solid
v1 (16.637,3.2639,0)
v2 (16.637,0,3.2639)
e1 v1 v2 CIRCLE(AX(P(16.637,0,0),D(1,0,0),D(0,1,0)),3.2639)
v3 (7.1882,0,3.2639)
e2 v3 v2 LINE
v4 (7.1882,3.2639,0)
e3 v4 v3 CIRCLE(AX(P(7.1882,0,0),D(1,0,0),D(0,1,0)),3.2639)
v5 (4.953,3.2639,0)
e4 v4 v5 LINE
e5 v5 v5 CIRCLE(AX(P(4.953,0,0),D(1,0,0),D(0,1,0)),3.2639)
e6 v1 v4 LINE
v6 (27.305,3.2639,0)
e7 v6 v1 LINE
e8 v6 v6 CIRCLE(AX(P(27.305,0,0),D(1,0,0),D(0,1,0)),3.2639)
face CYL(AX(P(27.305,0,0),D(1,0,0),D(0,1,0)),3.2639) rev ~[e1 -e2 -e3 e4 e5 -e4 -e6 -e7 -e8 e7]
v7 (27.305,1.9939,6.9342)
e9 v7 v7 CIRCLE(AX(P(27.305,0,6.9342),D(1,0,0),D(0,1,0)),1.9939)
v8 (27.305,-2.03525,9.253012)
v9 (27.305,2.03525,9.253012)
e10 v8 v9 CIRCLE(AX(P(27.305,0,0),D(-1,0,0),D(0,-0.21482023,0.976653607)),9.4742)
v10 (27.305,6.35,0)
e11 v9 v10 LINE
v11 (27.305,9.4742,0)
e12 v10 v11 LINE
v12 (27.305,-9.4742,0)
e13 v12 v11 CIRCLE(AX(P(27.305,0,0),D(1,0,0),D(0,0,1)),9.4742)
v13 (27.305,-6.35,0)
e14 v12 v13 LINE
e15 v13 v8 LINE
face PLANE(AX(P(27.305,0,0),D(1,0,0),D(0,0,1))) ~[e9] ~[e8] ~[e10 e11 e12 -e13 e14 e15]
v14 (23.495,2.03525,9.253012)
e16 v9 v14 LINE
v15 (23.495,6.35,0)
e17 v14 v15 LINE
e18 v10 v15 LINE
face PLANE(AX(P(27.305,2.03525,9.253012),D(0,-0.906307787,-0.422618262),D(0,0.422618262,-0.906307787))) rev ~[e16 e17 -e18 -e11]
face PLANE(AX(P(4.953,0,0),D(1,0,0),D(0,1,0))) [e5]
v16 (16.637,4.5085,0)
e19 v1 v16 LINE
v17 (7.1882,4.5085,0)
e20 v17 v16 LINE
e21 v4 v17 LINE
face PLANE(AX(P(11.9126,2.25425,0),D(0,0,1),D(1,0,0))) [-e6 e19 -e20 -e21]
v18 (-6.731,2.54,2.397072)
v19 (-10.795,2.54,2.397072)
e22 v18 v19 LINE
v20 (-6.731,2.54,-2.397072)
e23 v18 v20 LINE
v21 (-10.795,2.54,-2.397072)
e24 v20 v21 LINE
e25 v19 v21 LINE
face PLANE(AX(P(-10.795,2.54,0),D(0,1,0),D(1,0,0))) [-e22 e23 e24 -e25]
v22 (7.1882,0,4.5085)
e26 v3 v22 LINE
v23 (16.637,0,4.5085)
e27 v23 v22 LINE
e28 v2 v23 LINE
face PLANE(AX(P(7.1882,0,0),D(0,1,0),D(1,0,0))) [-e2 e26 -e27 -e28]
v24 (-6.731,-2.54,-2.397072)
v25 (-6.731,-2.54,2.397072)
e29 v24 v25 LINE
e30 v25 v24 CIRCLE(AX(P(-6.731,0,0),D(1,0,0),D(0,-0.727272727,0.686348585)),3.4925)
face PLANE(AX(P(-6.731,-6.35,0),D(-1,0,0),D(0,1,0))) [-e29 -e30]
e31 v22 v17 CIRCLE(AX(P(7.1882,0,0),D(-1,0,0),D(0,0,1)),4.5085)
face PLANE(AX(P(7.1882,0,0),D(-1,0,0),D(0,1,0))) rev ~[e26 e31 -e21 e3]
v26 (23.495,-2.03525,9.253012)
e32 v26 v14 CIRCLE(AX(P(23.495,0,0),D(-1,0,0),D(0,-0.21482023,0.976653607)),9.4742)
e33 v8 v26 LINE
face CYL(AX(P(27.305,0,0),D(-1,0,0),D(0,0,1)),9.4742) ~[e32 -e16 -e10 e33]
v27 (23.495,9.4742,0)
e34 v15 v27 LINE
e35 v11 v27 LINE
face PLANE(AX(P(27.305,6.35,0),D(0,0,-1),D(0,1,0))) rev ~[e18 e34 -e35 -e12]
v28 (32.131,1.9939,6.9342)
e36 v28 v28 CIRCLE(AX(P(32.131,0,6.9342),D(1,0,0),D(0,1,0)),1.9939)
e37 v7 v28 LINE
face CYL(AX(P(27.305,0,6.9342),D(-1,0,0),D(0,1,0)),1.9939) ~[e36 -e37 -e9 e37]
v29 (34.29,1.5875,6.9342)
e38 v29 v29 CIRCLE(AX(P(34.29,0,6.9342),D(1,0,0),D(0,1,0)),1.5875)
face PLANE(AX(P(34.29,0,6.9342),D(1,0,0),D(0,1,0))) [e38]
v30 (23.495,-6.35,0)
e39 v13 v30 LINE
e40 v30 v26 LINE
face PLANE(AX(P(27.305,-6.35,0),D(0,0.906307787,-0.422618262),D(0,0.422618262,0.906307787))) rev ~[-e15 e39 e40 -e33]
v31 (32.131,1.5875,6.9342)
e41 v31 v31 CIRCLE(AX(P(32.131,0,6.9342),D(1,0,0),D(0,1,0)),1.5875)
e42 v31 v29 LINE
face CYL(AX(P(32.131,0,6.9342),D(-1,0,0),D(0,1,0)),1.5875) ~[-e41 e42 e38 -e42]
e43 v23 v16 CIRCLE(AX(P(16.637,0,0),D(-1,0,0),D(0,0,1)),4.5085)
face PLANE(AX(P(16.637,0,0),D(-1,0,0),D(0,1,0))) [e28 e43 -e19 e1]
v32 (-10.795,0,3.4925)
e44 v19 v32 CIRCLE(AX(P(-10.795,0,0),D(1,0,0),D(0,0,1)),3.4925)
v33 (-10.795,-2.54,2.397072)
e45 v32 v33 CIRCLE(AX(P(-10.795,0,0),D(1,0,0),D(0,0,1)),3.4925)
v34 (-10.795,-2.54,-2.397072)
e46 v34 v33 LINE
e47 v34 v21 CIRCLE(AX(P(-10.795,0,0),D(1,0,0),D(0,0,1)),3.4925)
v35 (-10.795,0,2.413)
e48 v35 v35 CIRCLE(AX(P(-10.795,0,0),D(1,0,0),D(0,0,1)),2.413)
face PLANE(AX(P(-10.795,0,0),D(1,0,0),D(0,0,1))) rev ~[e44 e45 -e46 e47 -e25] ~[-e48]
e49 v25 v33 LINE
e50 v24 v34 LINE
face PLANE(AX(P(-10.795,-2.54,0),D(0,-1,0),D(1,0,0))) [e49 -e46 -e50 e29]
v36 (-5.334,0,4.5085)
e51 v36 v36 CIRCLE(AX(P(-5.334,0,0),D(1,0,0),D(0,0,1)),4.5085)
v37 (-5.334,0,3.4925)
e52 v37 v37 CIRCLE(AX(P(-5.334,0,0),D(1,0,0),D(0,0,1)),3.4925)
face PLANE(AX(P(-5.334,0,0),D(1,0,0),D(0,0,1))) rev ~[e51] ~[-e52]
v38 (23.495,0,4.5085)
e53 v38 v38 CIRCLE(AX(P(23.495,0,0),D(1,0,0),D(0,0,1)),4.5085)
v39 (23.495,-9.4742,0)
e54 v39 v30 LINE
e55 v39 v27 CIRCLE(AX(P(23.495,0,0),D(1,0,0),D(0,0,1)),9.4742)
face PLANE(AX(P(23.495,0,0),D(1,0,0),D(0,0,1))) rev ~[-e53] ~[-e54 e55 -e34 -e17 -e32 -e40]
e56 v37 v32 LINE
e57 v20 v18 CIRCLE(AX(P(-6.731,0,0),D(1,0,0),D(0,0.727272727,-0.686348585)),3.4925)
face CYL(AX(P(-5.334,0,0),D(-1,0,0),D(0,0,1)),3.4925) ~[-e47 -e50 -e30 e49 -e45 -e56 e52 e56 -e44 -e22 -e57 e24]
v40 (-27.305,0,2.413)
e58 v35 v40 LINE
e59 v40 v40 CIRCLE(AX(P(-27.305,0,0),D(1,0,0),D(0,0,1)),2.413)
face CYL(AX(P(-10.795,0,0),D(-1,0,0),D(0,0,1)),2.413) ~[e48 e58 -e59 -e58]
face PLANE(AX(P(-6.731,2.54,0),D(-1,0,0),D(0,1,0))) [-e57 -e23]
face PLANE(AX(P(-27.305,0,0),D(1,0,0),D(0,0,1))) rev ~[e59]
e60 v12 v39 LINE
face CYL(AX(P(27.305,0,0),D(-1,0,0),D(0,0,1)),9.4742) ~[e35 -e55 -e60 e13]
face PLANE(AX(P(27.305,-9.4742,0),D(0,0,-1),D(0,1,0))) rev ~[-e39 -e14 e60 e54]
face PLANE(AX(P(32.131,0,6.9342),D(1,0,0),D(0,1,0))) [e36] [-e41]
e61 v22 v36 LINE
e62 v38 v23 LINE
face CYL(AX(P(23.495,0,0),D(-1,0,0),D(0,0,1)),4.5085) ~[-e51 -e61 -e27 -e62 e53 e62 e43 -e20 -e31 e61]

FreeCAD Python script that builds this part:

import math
import FreeCAD as App
import Part
import Sketcher

V = App.Vector
Q = App.Units.Quantity

doc = App.newDocument("Part")
params = doc.addObject("Spreadsheet::Sheet", "Params")
for row, (alias, value) in enumerate([
    ("sketch1_width", "2.15 in"),
    ("sketch1_width2", "0.65 in"),
    ("sketch1_height", "0.04 in"),
    ("sketch1_width3", "1.135 in"),
    ("sketch1_height2", "0.095 in"),
    ("revolution_angle", "360 deg"),
    ("sketch2_radius", "0.373 in"),
    ("sketch2_width", "0.123 in"),
    ("sketch3_diameter", "0.257 in"),
    ("pocket2_length", "0.88 in"),
    ("sketch4_diameter", "0.157 in"),
    ("pad1_length", "0.19 in"),
    ("sketch5_diameter", "0.125 in"),
    ("pad2_length", "0.085 in"),
    ("sketch6_width", "0.372 in"),
    ("pocket3_length", "1 in"),
    ("sketch7_width", "0.16 in"),
    ("sketch7_height", "0.15 in"),
], start=1):
    params.set(f"A{row}", alias)
    params.set(f"B{row}", "=" + value)
    params.setAlias(f"B{row}", alias)

body = doc.addObject("PartDesign::Body", "Body")

sketch1 = body.newObject("Sketcher::SketchObject", "Sketch")
sketch1.AttachmentSupport = (doc.getObject("XZ_Plane"), [""])
sketch1.MapMode = "FlatFace"
sketch1.addGeometry(Part.LineSegment(V(-27.3, 2.4, 0), V(-27.3, 0, 0)), False)
sketch1.addGeometry(Part.LineSegment(V(-27.3, 0, 0), V(27.3, 0, 0)), False)
sketch1.addGeometry(Part.LineSegment(V(27.3, 0, 0), V(27.3, 9.5, 0)), False)
sketch1.addGeometry(Part.LineSegment(V(27.3, 9.5, 0), V(23.5, 9.5, 0)), False)
sketch1.addGeometry(Part.LineSegment(V(23.5, 9.5, 0), V(23.5, 4.5, 0)), False)
sketch1.addGeometry(Part.LineSegment(V(23.5, 4.5, 0), V(-5.3, 4.5, 0)), False)
sketch1.addGeometry(Part.LineSegment(V(-5.3, 4.5, 0), V(-5.3, 3.5, 0)), False)
sketch1.addGeometry(Part.LineSegment(V(-5.3, 3.5, 0), V(-10.8, 3.5, 0)), False)
sketch1.addGeometry(Part.LineSegment(V(-10.8, 3.5, 0), V(-10.8, 2.4, 0)), False)
sketch1.addGeometry(Part.LineSegment(V(-10.8, 2.4, 0), V(-27.3, 2.4, 0)), False)
sketch1.addConstraint(Sketcher.Constraint("Coincident", 0, 2, 1, 1))
sketch1.addConstraint(Sketcher.Constraint("Coincident", 1, 2, 2, 1))
sketch1.addConstraint(Sketcher.Constraint("Coincident", 2, 2, 3, 1))
sketch1.addConstraint(Sketcher.Constraint("Coincident", 3, 2, 4, 1))
sketch1.addConstraint(Sketcher.Constraint("Coincident", 4, 2, 5, 1))
sketch1.addConstraint(Sketcher.Constraint("Coincident", 5, 2, 6, 1))
sketch1.addConstraint(Sketcher.Constraint("Coincident", 6, 2, 7, 1))
sketch1.addConstraint(Sketcher.Constraint("Coincident", 7, 2, 8, 1))
sketch1.addConstraint(Sketcher.Constraint("Coincident", 8, 2, 9, 1))
sketch1.addConstraint(Sketcher.Constraint("Coincident", 9, 2, 0, 1))
sketch1.addConstraint(Sketcher.Constraint("Vertical", 0))
sketch1.addConstraint(Sketcher.Constraint("Horizontal", 1))
sketch1.addConstraint(Sketcher.Constraint("Vertical", 2))
sketch1.addConstraint(Sketcher.Constraint("Horizontal", 3))
sketch1.addConstraint(Sketcher.Constraint("Vertical", 4))
sketch1.addConstraint(Sketcher.Constraint("Horizontal", 5))
sketch1.addConstraint(Sketcher.Constraint("Vertical", 6))
sketch1.addConstraint(Sketcher.Constraint("Horizontal", 7))
sketch1.addConstraint(Sketcher.Constraint("Vertical", 8))
sketch1.addConstraint(Sketcher.Constraint("Horizontal", 9))
sketch1.addConstraint(Sketcher.Constraint("Symmetric", 0, 2, 1, 2, -1, 1))
sketch1.addConstraint(Sketcher.Constraint("DistanceX", 0, 2, 3, 2, Q("2 in")))
sketch1.addConstraint(Sketcher.Constraint("DistanceX", 1, 1, 1, 2, Q("2.15 in")))
sketch1.addConstraint(Sketcher.Constraint("DistanceX", 9, 2, 9, 1, Q("0.65 in")))
sketch1.addConstraint(Sketcher.Constraint("DistanceY", 6, 2, 6, 1, Q("0.04 in")))
sketch1.addConstraint(Sketcher.Constraint("DistanceX", 5, 2, 5, 1, Q("1.135 in")))
sketch1.addConstraint(Sketcher.Constraint("DistanceY", 0, 2, 0, 1, Q("0.095 in")))
sketch1.addConstraint(Sketcher.Constraint("DistanceY", 2, 1, 2, 2, Q("0.373 in")))
sketch1.addConstraint(Sketcher.Constraint("DistanceY", 4, 2, 4, 1, Q("0.1955 in")))
sketch1.setExpression("Constraints[22]", "Params.sketch1_width")
sketch1.setExpression("Constraints[23]", "Params.sketch1_width2")
sketch1.setExpression("Constraints[24]", "Params.sketch1_height")
sketch1.setExpression("Constraints[25]", "Params.sketch1_width3")
sketch1.setExpression("Constraints[26]", "Params.sketch1_height2")
revolution = body.newObject("PartDesign::Revolution", "Revolution")
revolution.Profile = sketch1
revolution.ReferenceAxis = (sketch1, ["H_Axis"])
revolution.setExpression("Angle", "Params.revolution_angle")

sketch2 = body.newObject("Sketcher::SketchObject", "Sketch001")
sketch2.AttachmentSupport = (doc.getObject("YZ_Plane"), [""])
sketch2.MapMode = "FlatFace"
sketch2.AttachmentOffset = App.Placement(V(0, 0, 1.075 * 25.4), App.Rotation())
sketch2.addGeometry(Part.ArcOfCircle(Part.Circle(V(0, 0, 0), V(0, 0, 1), 9.5), math.radians(102), math.radians(180)), False)
sketch2.addGeometry(Part.LineSegment(V(-9.5, 0, 0), V(-6.3, 0, 0)), False)
sketch2.addGeometry(Part.LineSegment(V(-6.3, 0, 0), V(-2, 9.3, 0)), False)
sketch2.addGeometry(Part.LineSegment(V(6.3, 0, 0), V(9.5, 0, 0)), False)
sketch2.addGeometry(Part.ArcOfCircle(Part.Circle(V(0, 0, 0), V(0, 0, 1), 9.5), math.radians(0), math.radians(78)), False)
sketch2.addGeometry(Part.LineSegment(V(2, 9.3, 0), V(6.3, 0, 0)), False)
sketch2.addConstraint(Sketcher.Constraint("Coincident", 0, 2, 1, 1))
sketch2.addConstraint(Sketcher.Constraint("Coincident", 1, 2, 2, 1))
sketch2.addConstraint(Sketcher.Constraint("Coincident", 2, 2, 0, 1))
sketch2.addConstraint(Sketcher.Constraint("Coincident", 3, 2, 4, 1))
sketch2.addConstraint(Sketcher.Constraint("Coincident", 4, 2, 5, 1))
sketch2.addConstraint(Sketcher.Constraint("Coincident", 5, 2, 3, 1))
sketch2.addConstraint(Sketcher.Constraint("Horizontal", 1))
sketch2.addConstraint(Sketcher.Constraint("Horizontal", 3))
sketch2.addConstraint(Sketcher.Constraint("Coincident", 0, 3, -1, 1))
sketch2.addConstraint(Sketcher.Constraint("Coincident", 4, 3, -1, 1))
sketch2.addConstraint(Sketcher.Constraint("Equal", 0, 4))
sketch2.addConstraint(Sketcher.Constraint("Symmetric", 1, 2, 5, 2, -1, 1))
sketch2.addConstraint(Sketcher.Constraint("PointOnObject", 0, 2, -1))
sketch2.addConstraint(Sketcher.Constraint("Horizontal", 2, 2, 4, 2))
sketch2.addConstraint(Sketcher.Constraint("Angle", 2, Q("65 deg")))
sketch2.addConstraint(Sketcher.Constraint("Radius", 0, Q("0.373 in")))
sketch2.addConstraint(Sketcher.Constraint("DistanceX", 1, 1, 1, 2, Q("0.123 in")))
sketch2.setExpression("Constraints[15]", "Params.sketch2_radius")
sketch2.setExpression("Constraints[16]", "Params.sketch2_width")
pocket1 = body.newObject("PartDesign::Pocket", "Pocket")
pocket1.Profile = sketch2
pocket1.Type = "ThroughAll"

sketch3 = body.newObject("Sketcher::SketchObject", "Sketch002")
sketch3.AttachmentSupport = (doc.getObject("YZ_Plane"), [""])
sketch3.MapMode = "FlatFace"
sketch3.AttachmentOffset = App.Placement(V(0, 0, 1.075 * 25.4), App.Rotation())
sketch3.addGeometry(Part.Circle(V(0, 0, 0), V(0, 0, 1), 3.3), False)
sketch3.addConstraint(Sketcher.Constraint("Coincident", 0, 3, -1, 1))
sketch3.addConstraint(Sketcher.Constraint("Diameter", 0, Q("0.257 in")))
sketch3.setExpression("Constraints[1]", "Params.sketch3_diameter")
pocket2 = body.newObject("PartDesign::Pocket", "Pocket001")
pocket2.Profile = sketch3
pocket2.setExpression("Length", "Params.pocket2_length")

sketch4 = body.newObject("Sketcher::SketchObject", "Sketch003")
sketch4.AttachmentSupport = (doc.getObject("YZ_Plane"), [""])
sketch4.MapMode = "FlatFace"
sketch4.AttachmentOffset = App.Placement(V(0, 0, 1.075 * 25.4), App.Rotation())
sketch4.addGeometry(Part.Circle(V(0, 6.9, 0), V(0, 0, 1), 2), False)
sketch4.addConstraint(Sketcher.Constraint("PointOnObject", 0, 3, -2))
sketch4.addConstraint(Sketcher.Constraint("Diameter", 0, Q("0.157 in")))
sketch4.addConstraint(Sketcher.Constraint("DistanceY", -1, 1, 0, 3, Q("0.273 in")))
sketch4.setExpression("Constraints[1]", "Params.sketch4_diameter")
pad1 = body.newObject("PartDesign::Pad", "Pad")
pad1.Profile = sketch4
pad1.setExpression("Length", "Params.pad1_length")

sketch5 = body.newObject("Sketcher::SketchObject", "Sketch004")
sketch5.AttachmentSupport = (doc.getObject("YZ_Plane"), [""])
sketch5.MapMode = "FlatFace"
sketch5.AttachmentOffset = App.Placement(V(0, 0, 1.265 * 25.4), App.Rotation())
sketch5.addGeometry(Part.Circle(V(0, 6.9, 0), V(0, 0, 1), 1.6), False)
sketch5.addConstraint(Sketcher.Constraint("PointOnObject", 0, 3, -2))
sketch5.addConstraint(Sketcher.Constraint("Diameter", 0, Q("0.125 in")))
sketch5.addConstraint(Sketcher.Constraint("DistanceY", -1, 1, 0, 3, Q("0.273 in")))
sketch5.setExpression("Constraints[1]", "Params.sketch5_diameter")
pad2 = body.newObject("PartDesign::Pad", "Pad001")
pad2.Profile = sketch5
pad2.setExpression("Length", "Params.pad2_length")

sketch6 = body.newObject("Sketcher::SketchObject", "Sketch005")
sketch6.AttachmentSupport = (doc.getObject("XY_Plane"), [""])
sketch6.MapMode = "FlatFace"
sketch6.addGeometry(Part.LineSegment(V(7.2, 4.5, 0), V(7.2, 0, 0)), False)
sketch6.addGeometry(Part.LineSegment(V(7.2, 0, 0), V(16.6, 0, 0)), False)
sketch6.addGeometry(Part.LineSegment(V(16.6, 0, 0), V(16.6, 4.5, 0)), False)
sketch6.addGeometry(Part.LineSegment(V(16.6, 4.5, 0), V(7.2, 4.5, 0)), False)
sketch6.addConstraint(Sketcher.Constraint("Coincident", 0, 2, 1, 1))
sketch6.addConstraint(Sketcher.Constraint("Coincident", 1, 2, 2, 1))
sketch6.addConstraint(Sketcher.Constraint("Coincident", 2, 2, 3, 1))
sketch6.addConstraint(Sketcher.Constraint("Coincident", 3, 2, 0, 1))
sketch6.addConstraint(Sketcher.Constraint("Vertical", 0))
sketch6.addConstraint(Sketcher.Constraint("Horizontal", 1))
sketch6.addConstraint(Sketcher.Constraint("Vertical", 2))
sketch6.addConstraint(Sketcher.Constraint("Horizontal", 3))
sketch6.addConstraint(Sketcher.Constraint("PointOnObject", 0, 2, -1))
sketch6.addConstraint(Sketcher.Constraint("DistanceX", 1, 1, 1, 2, Q("0.372 in")))
sketch6.addConstraint(Sketcher.Constraint("DistanceY", 0, 2, 0, 1, Q("0.1775 in")))
sketch6.addConstraint(Sketcher.Constraint("DistanceX", -1, 1, 0, 2, Q("0.283 in")))
sketch6.setExpression("Constraints[9]", "Params.sketch6_width")
pocket3 = body.newObject("PartDesign::Pocket", "Pocket002")
pocket3.Profile = sketch6
pocket3.setExpression("Length", "Params.pocket3_length")
pocket3.Reversed = True

sketch7 = body.newObject("Sketcher::SketchObject", "Sketch006")
sketch7.AttachmentSupport = (doc.getObject("XY_Plane"), [""])
sketch7.MapMode = "FlatFace"
sketch7.addGeometry(Part.LineSegment(V(-10.8, -2.5, 0), V(-10.8, -6.3, 0)), False)
sketch7.addGeometry(Part.LineSegment(V(-10.8, -6.3, 0), V(-6.7, -6.3, 0)), False)
sketch7.addGeometry(Part.LineSegment(V(-6.7, -6.3, 0), V(-6.7, -2.5, 0)), False)
sketch7.addGeometry(Part.LineSegment(V(-6.7, -2.5, 0), V(-10.8, -2.5, 0)), False)
sketch7.addGeometry(Part.LineSegment(V(-10.8, 6.3, 0), V(-10.8, 2.5, 0)), False)
sketch7.addGeometry(Part.LineSegment(V(-10.8, 2.5, 0), V(-6.7, 2.5, 0)), False)
sketch7.addGeometry(Part.LineSegment(V(-6.7, 2.5, 0), V(-6.7, 6.3, 0)), False)
sketch7.addGeometry(Part.LineSegment(V(-6.7, 6.3, 0), V(-10.8, 6.3, 0)), False)
sketch7.addConstraint(Sketcher.Constraint("Coincident", 0, 2, 1, 1))
sketch7.addConstraint(Sketcher.Constraint("Coincident", 1, 2, 2, 1))
sketch7.addConstraint(Sketcher.Constraint("Coincident", 2, 2, 3, 1))
sketch7.addConstraint(Sketcher.Constraint("Coincident", 3, 2, 0, 1))
sketch7.addConstraint(Sketcher.Constraint("Coincident", 4, 2, 5, 1))
sketch7.addConstraint(Sketcher.Constraint("Coincident", 5, 2, 6, 1))
sketch7.addConstraint(Sketcher.Constraint("Coincident", 6, 2, 7, 1))
sketch7.addConstraint(Sketcher.Constraint("Coincident", 7, 2, 4, 1))
sketch7.addConstraint(Sketcher.Constraint("Vertical", 0))
sketch7.addConstraint(Sketcher.Constraint("Horizontal", 1))
sketch7.addConstraint(Sketcher.Constraint("Vertical", 2))
sketch7.addConstraint(Sketcher.Constraint("Horizontal", 3))
sketch7.addConstraint(Sketcher.Constraint("Vertical", 4))
sketch7.addConstraint(Sketcher.Constraint("Horizontal", 5))
sketch7.addConstraint(Sketcher.Constraint("Vertical", 6))
sketch7.addConstraint(Sketcher.Constraint("Horizontal", 7))
sketch7.addConstraint(Sketcher.Constraint("Symmetric", 3, 2, 4, 2, -1))
sketch7.addConstraint(Sketcher.Constraint("Symmetric", 1, 2, 6, 2, -1))
sketch7.addConstraint(Sketcher.Constraint("DistanceX", 1, 1, 1, 2, Q("0.16 in")))
sketch7.addConstraint(Sketcher.Constraint("DistanceY", 0, 2, 0, 1, Q("0.15 in")))
sketch7.addConstraint(Sketcher.Constraint("DistanceY", 2, 2, -1, 1, Q("0.1 in")))
sketch7.addConstraint(Sketcher.Constraint("DistanceX", 0, 2, -1, 1, Q("0.425 in")))
sketch7.setExpression("Constraints[18]", "Params.sketch7_width")
sketch7.setExpression("Constraints[19]", "Params.sketch7_height")
pocket4 = body.newObject("PartDesign::Pocket", "Pocket003")
pocket4.Profile = sketch7
pocket4.Type = "ThroughAll"
pocket4.Midplane = True

doc.recompute()
